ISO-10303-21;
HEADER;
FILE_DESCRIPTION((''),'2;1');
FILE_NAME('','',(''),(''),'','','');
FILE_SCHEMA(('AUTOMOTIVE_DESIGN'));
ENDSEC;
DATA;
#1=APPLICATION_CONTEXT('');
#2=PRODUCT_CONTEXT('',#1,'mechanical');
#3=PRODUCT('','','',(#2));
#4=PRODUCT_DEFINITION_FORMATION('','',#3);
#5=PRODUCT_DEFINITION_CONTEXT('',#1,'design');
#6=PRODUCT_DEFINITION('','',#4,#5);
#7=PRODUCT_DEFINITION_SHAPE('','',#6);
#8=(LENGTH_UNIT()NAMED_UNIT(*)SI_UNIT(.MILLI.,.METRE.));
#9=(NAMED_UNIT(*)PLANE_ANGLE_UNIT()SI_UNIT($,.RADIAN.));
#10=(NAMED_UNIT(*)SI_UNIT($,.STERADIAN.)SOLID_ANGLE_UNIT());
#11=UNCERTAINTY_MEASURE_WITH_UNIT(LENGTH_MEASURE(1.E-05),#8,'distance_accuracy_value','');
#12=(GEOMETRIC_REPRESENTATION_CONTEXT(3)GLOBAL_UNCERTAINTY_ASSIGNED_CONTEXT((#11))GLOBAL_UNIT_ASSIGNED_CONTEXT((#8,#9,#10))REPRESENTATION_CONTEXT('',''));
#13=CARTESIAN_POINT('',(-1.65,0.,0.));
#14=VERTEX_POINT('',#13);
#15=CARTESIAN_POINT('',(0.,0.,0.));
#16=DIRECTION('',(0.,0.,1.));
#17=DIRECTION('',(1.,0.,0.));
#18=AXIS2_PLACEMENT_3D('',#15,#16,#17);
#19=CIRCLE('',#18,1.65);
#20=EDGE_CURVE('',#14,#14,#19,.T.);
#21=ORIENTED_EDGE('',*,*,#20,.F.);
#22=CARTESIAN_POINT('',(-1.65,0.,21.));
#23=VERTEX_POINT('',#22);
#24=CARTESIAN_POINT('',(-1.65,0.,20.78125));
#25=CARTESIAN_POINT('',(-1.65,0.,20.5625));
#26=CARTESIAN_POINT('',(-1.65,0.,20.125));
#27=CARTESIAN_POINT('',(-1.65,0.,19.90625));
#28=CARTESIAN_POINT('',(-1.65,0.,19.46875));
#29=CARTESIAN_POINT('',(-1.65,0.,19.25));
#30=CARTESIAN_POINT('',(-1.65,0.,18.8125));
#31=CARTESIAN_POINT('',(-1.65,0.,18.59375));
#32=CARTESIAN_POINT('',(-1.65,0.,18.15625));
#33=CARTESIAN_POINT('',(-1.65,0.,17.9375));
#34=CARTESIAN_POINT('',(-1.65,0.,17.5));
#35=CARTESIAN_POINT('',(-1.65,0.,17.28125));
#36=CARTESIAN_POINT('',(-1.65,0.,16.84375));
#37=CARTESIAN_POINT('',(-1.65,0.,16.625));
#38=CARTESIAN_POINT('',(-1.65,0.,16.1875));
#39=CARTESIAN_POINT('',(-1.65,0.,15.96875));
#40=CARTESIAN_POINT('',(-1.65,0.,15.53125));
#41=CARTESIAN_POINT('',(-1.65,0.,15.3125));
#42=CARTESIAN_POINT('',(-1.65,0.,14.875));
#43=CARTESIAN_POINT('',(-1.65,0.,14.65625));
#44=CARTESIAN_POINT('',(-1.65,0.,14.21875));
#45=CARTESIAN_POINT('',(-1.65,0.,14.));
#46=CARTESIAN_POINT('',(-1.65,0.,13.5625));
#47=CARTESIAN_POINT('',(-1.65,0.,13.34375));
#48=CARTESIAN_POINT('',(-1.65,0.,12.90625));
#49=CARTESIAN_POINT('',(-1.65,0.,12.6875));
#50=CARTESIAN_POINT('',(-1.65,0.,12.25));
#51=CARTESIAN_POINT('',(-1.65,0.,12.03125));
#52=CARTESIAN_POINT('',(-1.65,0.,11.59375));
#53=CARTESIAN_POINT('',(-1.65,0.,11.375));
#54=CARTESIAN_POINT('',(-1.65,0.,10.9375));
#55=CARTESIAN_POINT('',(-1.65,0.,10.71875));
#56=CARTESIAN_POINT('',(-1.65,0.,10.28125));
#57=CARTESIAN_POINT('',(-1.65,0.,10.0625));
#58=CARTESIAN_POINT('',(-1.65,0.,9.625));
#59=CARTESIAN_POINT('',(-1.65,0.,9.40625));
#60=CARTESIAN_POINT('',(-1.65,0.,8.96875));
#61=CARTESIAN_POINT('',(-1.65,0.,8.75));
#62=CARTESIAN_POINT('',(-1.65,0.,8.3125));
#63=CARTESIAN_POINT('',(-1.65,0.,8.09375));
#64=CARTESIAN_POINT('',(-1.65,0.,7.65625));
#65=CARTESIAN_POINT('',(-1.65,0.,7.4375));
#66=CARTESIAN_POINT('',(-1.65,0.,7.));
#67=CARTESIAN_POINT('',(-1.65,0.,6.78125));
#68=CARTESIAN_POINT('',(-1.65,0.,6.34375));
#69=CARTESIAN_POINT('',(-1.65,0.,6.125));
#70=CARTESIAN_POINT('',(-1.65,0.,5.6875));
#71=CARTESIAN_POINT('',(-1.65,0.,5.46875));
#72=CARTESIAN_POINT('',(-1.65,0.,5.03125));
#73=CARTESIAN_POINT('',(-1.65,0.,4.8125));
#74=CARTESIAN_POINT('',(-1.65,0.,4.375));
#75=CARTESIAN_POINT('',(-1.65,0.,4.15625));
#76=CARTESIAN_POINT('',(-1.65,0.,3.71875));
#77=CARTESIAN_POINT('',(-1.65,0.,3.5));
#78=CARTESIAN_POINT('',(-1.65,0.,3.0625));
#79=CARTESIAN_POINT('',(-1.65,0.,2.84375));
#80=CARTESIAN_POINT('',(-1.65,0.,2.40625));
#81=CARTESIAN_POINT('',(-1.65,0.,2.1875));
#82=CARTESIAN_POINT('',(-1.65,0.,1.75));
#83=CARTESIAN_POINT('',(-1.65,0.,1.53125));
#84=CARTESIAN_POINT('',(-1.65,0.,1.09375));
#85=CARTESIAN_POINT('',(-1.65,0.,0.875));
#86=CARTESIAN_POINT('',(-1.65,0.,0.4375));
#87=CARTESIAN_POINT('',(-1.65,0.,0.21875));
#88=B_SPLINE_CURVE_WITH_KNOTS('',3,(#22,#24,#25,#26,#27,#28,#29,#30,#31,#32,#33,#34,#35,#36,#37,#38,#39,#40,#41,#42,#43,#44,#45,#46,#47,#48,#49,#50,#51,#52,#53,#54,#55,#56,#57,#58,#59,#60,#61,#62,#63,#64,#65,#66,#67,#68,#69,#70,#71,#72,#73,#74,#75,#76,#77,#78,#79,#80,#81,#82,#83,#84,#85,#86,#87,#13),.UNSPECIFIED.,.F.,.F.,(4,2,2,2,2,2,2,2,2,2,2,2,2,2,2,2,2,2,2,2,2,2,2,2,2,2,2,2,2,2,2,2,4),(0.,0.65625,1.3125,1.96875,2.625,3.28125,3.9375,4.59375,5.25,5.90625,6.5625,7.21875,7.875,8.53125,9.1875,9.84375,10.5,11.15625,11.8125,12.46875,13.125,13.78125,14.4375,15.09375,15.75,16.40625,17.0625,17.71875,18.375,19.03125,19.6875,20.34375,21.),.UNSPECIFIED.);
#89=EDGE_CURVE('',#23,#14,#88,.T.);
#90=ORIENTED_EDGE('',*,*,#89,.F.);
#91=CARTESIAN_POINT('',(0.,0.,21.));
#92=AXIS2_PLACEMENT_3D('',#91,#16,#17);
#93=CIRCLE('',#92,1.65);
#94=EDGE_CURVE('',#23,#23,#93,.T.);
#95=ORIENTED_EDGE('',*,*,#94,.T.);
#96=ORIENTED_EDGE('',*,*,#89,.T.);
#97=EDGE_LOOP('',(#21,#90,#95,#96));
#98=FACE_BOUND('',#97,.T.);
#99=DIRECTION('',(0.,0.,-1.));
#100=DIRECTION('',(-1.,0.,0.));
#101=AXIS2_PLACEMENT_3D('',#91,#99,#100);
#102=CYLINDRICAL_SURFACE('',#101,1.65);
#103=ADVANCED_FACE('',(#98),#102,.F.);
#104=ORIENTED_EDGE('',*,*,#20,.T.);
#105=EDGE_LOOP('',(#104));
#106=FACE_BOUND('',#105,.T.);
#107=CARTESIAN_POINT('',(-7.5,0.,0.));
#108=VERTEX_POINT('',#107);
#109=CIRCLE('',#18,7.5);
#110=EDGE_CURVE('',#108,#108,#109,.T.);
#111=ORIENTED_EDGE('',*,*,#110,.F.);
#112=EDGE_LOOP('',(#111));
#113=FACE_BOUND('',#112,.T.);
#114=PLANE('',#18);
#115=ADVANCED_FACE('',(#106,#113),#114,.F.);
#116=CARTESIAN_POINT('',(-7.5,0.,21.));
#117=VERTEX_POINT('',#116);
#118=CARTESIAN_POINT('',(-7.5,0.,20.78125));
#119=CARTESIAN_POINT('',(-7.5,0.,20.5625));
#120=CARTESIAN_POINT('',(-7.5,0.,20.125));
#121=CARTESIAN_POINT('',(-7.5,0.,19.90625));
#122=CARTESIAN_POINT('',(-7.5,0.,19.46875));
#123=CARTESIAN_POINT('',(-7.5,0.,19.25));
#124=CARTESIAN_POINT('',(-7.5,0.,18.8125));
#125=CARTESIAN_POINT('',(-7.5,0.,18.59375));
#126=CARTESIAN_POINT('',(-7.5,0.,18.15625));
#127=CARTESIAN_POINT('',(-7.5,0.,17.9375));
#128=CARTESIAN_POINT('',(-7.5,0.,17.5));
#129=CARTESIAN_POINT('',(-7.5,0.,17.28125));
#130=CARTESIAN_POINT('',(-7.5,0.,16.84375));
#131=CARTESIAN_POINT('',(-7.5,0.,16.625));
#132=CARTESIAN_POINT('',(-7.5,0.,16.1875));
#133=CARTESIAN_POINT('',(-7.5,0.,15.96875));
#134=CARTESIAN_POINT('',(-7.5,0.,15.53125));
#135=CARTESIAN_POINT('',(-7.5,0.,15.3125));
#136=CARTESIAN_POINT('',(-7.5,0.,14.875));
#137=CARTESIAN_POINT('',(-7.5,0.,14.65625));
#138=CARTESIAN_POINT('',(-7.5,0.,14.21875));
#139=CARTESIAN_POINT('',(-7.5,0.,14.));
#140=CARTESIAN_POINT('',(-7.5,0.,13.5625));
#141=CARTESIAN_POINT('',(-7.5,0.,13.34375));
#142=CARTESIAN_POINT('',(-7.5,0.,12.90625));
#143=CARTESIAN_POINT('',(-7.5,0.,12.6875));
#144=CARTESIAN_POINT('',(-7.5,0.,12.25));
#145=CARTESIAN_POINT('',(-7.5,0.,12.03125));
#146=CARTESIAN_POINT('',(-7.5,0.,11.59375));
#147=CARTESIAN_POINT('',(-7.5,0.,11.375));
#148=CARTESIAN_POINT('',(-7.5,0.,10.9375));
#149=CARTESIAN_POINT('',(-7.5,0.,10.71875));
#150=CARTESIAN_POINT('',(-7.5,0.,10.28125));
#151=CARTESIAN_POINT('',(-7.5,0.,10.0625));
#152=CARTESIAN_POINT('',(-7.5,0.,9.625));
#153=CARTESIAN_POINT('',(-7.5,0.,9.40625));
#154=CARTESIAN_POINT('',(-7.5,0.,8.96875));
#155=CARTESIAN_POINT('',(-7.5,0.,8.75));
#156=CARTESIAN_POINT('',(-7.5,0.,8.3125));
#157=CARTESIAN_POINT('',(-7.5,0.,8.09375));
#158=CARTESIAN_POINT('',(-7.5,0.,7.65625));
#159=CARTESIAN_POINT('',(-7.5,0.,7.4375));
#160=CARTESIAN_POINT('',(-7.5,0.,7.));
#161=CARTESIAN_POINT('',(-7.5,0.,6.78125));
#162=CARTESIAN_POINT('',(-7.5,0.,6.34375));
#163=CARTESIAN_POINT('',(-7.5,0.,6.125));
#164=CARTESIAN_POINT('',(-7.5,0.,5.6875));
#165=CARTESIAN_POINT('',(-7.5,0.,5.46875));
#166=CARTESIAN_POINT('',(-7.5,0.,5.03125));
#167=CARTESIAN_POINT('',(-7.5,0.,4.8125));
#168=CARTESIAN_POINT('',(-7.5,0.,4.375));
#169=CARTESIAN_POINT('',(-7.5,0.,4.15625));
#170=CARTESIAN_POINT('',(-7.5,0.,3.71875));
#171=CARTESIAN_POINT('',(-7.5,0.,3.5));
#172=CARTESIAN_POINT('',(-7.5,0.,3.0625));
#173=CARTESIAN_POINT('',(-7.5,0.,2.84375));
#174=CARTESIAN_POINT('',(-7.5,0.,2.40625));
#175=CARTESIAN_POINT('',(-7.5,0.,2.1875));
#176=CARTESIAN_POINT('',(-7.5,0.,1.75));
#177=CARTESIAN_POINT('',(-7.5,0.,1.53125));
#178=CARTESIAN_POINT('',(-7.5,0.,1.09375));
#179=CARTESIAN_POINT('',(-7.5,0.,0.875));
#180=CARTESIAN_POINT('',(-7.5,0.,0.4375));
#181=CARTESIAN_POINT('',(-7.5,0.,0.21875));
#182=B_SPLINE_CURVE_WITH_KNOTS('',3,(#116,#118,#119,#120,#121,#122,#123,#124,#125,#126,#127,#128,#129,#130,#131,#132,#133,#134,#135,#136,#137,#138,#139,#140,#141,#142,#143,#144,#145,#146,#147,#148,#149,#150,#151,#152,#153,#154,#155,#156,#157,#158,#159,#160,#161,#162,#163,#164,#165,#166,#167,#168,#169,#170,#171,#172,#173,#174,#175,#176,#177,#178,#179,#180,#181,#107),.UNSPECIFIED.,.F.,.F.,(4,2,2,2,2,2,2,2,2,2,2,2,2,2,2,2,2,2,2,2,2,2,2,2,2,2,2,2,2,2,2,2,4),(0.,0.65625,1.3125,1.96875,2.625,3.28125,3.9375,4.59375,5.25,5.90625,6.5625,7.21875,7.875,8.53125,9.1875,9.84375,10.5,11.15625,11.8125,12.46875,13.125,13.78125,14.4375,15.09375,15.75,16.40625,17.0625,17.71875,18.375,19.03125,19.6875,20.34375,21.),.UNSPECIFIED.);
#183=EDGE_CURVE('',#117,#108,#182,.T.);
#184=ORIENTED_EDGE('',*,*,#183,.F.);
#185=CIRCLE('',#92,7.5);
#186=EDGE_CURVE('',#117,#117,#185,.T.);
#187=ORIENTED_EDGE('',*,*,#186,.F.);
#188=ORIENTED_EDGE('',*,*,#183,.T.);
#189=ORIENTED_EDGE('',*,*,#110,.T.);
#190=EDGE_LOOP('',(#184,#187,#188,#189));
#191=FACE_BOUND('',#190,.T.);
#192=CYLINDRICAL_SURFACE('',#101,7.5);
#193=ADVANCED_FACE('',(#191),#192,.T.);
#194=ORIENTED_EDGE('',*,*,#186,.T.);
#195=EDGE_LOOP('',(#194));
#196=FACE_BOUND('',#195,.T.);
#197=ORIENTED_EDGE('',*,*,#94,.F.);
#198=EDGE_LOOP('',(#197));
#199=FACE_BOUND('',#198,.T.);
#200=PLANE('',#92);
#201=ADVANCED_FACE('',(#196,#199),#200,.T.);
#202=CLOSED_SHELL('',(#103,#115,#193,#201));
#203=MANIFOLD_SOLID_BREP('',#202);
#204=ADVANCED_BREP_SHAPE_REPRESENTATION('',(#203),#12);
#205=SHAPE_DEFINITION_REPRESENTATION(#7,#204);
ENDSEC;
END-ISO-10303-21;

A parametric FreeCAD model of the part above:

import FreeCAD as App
import Part
import Sketcher
from FreeCAD import Vector
Q = App.Units.Quantity

doc = App.newDocument("Part")
body = doc.addObject("PartDesign::Body", "Body")

# Sketch on XY plane
sketch1 = doc.addObject("Sketcher::SketchObject", "Sketch")
body.addObject(sketch1)
sketch1.AttachmentSupport = (doc.XY_Plane, [""])
sketch1.MapMode = "FlatFace"
sketch1.addGeometry(Part.Circle(Vector(0, 0, 0), Vector(0, 0, 1), 7.5), False)
sketch1.addGeometry(Part.Circle(Vector(0, 0, 0), Vector(0, 0, 1), 1.6), False)
sketch1.addConstraint(Sketcher.Constraint("Coincident", 0, 3, -1, 1))
sketch1.addConstraint(Sketcher.Constraint("Coincident", 1, 3, -1, 1))
sketch1.addConstraint(Sketcher.Constraint("Diameter", 0, Q("15 mm")))
sketch1.addConstraint(Sketcher.Constraint("Diameter", 1, Q("3.3 mm")))
pad1 = doc.addObject("PartDesign::Pad", "Pad")
body.addObject(pad1)
pad1.Profile = sketch1
pad1.Length = 21

doc.recompute()
